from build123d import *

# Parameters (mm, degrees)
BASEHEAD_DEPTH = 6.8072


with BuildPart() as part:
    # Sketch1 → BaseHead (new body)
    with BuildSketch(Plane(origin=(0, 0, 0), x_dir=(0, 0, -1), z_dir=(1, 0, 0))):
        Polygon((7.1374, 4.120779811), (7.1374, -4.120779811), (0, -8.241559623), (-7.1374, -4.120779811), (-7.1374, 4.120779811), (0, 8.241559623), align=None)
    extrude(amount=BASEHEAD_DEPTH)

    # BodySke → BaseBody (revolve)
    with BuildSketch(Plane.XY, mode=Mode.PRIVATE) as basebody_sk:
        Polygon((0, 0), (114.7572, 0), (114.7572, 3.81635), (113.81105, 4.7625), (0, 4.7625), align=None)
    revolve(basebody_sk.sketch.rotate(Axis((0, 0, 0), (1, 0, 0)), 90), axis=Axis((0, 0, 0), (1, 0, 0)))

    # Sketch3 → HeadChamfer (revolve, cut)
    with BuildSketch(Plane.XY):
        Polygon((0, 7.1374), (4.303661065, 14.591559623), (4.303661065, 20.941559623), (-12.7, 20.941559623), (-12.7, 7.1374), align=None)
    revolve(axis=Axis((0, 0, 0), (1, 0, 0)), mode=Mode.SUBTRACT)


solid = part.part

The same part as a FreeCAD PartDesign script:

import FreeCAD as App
import Part
import Sketcher
from FreeCAD import Vector
Q = App.Units.Quantity


def add_polygon(sketch, points):
    """Adds a closed chain of lines whose ends are joined by coincident constraints."""
    first, n = sketch.GeometryCount, len(points)
    for a, b in zip(points, points[1:] + points[:1]):
        sketch.addGeometry(Part.LineSegment(App.Vector(*a, 0), App.Vector(*b, 0)), False)
    for i in range(n):
        sketch.addConstraint(Sketcher.Constraint("Coincident", first + i, 2, first + (i + 1) % n, 1))

doc = App.newDocument("Part")
body = doc.addObject("PartDesign::Body", "Body")

sketch1 = body.newObject("Sketcher::SketchObject", "Sketch")
sketch1.AttachmentSupport = (doc.getObject("YZ_Plane"), [""])
sketch1.MapMode = "FlatFace"
add_polygon(sketch1, [(-4.12078, -7.1374), (4.12078, -7.1374), (8.24156, 0), (4.12078, 7.1374), (-4.12078, 7.1374), (-8.24156, 0)])
sketch1.addConstraint([
    Sketcher.Constraint("Horizontal", 0),
    Sketcher.Constraint("Horizontal", 3),
    Sketcher.Constraint("Symmetric", 0, 2, 3, 2, -1, 1),
    Sketcher.Constraint("Symmetric", 1, 2, 4, 2, -1, 1),
    Sketcher.Constraint("PointOnObject", 1, 2, -1),
    Sketcher.Constraint("Parallel", 2, 5),
    Sketcher.Constraint("Vertical", 0, 2, 2, 2),
    Sketcher.Constraint("Angle", 1, Q("60 deg")),
    Sketcher.Constraint("DistanceY", 0, 2, -1, 1, Q("0.281 in")),
    Sketcher.Constraint("DistanceX", 0, 1, 0, 2, Q("8.24156 mm")),
])
pad1 = body.newObject("PartDesign::Pad", "Pad")
pad1.Profile = sketch1
pad1.Length = Q("0.268 in")

sketch2 = body.newObject("Sketcher::SketchObject", "Sketch001")
sketch2.AttachmentSupport = (doc.getObject("XY_Plane"), [""])
sketch2.MapMode = "FlatFace"
add_polygon(sketch2, [(0, 0), (114.7572, 0), (114.7572, 3.81635), (113.81105, 4.7625), (0, 4.7625)])
sketch2.addConstraint([
    Sketcher.Constraint("Horizontal", 0),
    Sketcher.Constraint("Vertical", 1),
    Sketcher.Constraint("Horizontal", 3),
    Sketcher.Constraint("Vertical", 4),
    Sketcher.Constraint("Coincident", 4, 2, -1, 1),
    Sketcher.Constraint("Angle", 2, Q("135 deg")),
    Sketcher.Constraint("DistanceX", 0, 1, 0, 2, Q("4.518 in")),
    Sketcher.Constraint("DistanceY", 4, 2, 4, 1, Q("0.1875 in")),
    Sketcher.Constraint("DistanceX", 3, 2, 3, 1, Q("113.81105 mm")),
])
revolution = body.newObject("PartDesign::Revolution", "Revolution")
revolution.Profile = sketch2
revolution.ReferenceAxis = (sketch2, ["H_Axis"])
revolution.Angle = 360

sketch3 = body.newObject("Sketcher::SketchObject", "Sketch002")
sketch3.AttachmentSupport = (doc.getObject("XY_Plane"), [""])
sketch3.MapMode = "FlatFace"
add_polygon(sketch3, [(0, 7.1374), (4.303661, 14.59156), (4.303661, 20.94156), (-12.7, 20.94156), (-12.7, 7.1374)])
sketch3.addConstraint([
    Sketcher.Constraint("Vertical", 1),
    Sketcher.Constraint("Horizontal", 2),
    Sketcher.Constraint("Vertical", 3),
    Sketcher.Constraint("Horizontal", 4),
    Sketcher.Constraint("PointOnObject", 4, 2, -2),
    Sketcher.Constraint("DistanceX", 4, 1, 4, 2, Q("0.5 in")),
    Sketcher.Constraint("Angle", 0, Q("60 deg")),
    Sketcher.Constraint("DistanceY", 1, 1, 1, 2, Q("0.25 in")),
    Sketcher.Constraint("DistanceY", -1, 1, 3, 2, Q("0.281 in")),
    Sketcher.Constraint("DistanceX", 2, 2, 2, 1, Q("17.003661 mm")),
])
groove = body.newObject("PartDesign::Groove", "Groove")
groove.Profile = sketch3
groove.ReferenceAxis = (sketch3, ["H_Axis"])
groove.Angle = 360

doc.recompute()
